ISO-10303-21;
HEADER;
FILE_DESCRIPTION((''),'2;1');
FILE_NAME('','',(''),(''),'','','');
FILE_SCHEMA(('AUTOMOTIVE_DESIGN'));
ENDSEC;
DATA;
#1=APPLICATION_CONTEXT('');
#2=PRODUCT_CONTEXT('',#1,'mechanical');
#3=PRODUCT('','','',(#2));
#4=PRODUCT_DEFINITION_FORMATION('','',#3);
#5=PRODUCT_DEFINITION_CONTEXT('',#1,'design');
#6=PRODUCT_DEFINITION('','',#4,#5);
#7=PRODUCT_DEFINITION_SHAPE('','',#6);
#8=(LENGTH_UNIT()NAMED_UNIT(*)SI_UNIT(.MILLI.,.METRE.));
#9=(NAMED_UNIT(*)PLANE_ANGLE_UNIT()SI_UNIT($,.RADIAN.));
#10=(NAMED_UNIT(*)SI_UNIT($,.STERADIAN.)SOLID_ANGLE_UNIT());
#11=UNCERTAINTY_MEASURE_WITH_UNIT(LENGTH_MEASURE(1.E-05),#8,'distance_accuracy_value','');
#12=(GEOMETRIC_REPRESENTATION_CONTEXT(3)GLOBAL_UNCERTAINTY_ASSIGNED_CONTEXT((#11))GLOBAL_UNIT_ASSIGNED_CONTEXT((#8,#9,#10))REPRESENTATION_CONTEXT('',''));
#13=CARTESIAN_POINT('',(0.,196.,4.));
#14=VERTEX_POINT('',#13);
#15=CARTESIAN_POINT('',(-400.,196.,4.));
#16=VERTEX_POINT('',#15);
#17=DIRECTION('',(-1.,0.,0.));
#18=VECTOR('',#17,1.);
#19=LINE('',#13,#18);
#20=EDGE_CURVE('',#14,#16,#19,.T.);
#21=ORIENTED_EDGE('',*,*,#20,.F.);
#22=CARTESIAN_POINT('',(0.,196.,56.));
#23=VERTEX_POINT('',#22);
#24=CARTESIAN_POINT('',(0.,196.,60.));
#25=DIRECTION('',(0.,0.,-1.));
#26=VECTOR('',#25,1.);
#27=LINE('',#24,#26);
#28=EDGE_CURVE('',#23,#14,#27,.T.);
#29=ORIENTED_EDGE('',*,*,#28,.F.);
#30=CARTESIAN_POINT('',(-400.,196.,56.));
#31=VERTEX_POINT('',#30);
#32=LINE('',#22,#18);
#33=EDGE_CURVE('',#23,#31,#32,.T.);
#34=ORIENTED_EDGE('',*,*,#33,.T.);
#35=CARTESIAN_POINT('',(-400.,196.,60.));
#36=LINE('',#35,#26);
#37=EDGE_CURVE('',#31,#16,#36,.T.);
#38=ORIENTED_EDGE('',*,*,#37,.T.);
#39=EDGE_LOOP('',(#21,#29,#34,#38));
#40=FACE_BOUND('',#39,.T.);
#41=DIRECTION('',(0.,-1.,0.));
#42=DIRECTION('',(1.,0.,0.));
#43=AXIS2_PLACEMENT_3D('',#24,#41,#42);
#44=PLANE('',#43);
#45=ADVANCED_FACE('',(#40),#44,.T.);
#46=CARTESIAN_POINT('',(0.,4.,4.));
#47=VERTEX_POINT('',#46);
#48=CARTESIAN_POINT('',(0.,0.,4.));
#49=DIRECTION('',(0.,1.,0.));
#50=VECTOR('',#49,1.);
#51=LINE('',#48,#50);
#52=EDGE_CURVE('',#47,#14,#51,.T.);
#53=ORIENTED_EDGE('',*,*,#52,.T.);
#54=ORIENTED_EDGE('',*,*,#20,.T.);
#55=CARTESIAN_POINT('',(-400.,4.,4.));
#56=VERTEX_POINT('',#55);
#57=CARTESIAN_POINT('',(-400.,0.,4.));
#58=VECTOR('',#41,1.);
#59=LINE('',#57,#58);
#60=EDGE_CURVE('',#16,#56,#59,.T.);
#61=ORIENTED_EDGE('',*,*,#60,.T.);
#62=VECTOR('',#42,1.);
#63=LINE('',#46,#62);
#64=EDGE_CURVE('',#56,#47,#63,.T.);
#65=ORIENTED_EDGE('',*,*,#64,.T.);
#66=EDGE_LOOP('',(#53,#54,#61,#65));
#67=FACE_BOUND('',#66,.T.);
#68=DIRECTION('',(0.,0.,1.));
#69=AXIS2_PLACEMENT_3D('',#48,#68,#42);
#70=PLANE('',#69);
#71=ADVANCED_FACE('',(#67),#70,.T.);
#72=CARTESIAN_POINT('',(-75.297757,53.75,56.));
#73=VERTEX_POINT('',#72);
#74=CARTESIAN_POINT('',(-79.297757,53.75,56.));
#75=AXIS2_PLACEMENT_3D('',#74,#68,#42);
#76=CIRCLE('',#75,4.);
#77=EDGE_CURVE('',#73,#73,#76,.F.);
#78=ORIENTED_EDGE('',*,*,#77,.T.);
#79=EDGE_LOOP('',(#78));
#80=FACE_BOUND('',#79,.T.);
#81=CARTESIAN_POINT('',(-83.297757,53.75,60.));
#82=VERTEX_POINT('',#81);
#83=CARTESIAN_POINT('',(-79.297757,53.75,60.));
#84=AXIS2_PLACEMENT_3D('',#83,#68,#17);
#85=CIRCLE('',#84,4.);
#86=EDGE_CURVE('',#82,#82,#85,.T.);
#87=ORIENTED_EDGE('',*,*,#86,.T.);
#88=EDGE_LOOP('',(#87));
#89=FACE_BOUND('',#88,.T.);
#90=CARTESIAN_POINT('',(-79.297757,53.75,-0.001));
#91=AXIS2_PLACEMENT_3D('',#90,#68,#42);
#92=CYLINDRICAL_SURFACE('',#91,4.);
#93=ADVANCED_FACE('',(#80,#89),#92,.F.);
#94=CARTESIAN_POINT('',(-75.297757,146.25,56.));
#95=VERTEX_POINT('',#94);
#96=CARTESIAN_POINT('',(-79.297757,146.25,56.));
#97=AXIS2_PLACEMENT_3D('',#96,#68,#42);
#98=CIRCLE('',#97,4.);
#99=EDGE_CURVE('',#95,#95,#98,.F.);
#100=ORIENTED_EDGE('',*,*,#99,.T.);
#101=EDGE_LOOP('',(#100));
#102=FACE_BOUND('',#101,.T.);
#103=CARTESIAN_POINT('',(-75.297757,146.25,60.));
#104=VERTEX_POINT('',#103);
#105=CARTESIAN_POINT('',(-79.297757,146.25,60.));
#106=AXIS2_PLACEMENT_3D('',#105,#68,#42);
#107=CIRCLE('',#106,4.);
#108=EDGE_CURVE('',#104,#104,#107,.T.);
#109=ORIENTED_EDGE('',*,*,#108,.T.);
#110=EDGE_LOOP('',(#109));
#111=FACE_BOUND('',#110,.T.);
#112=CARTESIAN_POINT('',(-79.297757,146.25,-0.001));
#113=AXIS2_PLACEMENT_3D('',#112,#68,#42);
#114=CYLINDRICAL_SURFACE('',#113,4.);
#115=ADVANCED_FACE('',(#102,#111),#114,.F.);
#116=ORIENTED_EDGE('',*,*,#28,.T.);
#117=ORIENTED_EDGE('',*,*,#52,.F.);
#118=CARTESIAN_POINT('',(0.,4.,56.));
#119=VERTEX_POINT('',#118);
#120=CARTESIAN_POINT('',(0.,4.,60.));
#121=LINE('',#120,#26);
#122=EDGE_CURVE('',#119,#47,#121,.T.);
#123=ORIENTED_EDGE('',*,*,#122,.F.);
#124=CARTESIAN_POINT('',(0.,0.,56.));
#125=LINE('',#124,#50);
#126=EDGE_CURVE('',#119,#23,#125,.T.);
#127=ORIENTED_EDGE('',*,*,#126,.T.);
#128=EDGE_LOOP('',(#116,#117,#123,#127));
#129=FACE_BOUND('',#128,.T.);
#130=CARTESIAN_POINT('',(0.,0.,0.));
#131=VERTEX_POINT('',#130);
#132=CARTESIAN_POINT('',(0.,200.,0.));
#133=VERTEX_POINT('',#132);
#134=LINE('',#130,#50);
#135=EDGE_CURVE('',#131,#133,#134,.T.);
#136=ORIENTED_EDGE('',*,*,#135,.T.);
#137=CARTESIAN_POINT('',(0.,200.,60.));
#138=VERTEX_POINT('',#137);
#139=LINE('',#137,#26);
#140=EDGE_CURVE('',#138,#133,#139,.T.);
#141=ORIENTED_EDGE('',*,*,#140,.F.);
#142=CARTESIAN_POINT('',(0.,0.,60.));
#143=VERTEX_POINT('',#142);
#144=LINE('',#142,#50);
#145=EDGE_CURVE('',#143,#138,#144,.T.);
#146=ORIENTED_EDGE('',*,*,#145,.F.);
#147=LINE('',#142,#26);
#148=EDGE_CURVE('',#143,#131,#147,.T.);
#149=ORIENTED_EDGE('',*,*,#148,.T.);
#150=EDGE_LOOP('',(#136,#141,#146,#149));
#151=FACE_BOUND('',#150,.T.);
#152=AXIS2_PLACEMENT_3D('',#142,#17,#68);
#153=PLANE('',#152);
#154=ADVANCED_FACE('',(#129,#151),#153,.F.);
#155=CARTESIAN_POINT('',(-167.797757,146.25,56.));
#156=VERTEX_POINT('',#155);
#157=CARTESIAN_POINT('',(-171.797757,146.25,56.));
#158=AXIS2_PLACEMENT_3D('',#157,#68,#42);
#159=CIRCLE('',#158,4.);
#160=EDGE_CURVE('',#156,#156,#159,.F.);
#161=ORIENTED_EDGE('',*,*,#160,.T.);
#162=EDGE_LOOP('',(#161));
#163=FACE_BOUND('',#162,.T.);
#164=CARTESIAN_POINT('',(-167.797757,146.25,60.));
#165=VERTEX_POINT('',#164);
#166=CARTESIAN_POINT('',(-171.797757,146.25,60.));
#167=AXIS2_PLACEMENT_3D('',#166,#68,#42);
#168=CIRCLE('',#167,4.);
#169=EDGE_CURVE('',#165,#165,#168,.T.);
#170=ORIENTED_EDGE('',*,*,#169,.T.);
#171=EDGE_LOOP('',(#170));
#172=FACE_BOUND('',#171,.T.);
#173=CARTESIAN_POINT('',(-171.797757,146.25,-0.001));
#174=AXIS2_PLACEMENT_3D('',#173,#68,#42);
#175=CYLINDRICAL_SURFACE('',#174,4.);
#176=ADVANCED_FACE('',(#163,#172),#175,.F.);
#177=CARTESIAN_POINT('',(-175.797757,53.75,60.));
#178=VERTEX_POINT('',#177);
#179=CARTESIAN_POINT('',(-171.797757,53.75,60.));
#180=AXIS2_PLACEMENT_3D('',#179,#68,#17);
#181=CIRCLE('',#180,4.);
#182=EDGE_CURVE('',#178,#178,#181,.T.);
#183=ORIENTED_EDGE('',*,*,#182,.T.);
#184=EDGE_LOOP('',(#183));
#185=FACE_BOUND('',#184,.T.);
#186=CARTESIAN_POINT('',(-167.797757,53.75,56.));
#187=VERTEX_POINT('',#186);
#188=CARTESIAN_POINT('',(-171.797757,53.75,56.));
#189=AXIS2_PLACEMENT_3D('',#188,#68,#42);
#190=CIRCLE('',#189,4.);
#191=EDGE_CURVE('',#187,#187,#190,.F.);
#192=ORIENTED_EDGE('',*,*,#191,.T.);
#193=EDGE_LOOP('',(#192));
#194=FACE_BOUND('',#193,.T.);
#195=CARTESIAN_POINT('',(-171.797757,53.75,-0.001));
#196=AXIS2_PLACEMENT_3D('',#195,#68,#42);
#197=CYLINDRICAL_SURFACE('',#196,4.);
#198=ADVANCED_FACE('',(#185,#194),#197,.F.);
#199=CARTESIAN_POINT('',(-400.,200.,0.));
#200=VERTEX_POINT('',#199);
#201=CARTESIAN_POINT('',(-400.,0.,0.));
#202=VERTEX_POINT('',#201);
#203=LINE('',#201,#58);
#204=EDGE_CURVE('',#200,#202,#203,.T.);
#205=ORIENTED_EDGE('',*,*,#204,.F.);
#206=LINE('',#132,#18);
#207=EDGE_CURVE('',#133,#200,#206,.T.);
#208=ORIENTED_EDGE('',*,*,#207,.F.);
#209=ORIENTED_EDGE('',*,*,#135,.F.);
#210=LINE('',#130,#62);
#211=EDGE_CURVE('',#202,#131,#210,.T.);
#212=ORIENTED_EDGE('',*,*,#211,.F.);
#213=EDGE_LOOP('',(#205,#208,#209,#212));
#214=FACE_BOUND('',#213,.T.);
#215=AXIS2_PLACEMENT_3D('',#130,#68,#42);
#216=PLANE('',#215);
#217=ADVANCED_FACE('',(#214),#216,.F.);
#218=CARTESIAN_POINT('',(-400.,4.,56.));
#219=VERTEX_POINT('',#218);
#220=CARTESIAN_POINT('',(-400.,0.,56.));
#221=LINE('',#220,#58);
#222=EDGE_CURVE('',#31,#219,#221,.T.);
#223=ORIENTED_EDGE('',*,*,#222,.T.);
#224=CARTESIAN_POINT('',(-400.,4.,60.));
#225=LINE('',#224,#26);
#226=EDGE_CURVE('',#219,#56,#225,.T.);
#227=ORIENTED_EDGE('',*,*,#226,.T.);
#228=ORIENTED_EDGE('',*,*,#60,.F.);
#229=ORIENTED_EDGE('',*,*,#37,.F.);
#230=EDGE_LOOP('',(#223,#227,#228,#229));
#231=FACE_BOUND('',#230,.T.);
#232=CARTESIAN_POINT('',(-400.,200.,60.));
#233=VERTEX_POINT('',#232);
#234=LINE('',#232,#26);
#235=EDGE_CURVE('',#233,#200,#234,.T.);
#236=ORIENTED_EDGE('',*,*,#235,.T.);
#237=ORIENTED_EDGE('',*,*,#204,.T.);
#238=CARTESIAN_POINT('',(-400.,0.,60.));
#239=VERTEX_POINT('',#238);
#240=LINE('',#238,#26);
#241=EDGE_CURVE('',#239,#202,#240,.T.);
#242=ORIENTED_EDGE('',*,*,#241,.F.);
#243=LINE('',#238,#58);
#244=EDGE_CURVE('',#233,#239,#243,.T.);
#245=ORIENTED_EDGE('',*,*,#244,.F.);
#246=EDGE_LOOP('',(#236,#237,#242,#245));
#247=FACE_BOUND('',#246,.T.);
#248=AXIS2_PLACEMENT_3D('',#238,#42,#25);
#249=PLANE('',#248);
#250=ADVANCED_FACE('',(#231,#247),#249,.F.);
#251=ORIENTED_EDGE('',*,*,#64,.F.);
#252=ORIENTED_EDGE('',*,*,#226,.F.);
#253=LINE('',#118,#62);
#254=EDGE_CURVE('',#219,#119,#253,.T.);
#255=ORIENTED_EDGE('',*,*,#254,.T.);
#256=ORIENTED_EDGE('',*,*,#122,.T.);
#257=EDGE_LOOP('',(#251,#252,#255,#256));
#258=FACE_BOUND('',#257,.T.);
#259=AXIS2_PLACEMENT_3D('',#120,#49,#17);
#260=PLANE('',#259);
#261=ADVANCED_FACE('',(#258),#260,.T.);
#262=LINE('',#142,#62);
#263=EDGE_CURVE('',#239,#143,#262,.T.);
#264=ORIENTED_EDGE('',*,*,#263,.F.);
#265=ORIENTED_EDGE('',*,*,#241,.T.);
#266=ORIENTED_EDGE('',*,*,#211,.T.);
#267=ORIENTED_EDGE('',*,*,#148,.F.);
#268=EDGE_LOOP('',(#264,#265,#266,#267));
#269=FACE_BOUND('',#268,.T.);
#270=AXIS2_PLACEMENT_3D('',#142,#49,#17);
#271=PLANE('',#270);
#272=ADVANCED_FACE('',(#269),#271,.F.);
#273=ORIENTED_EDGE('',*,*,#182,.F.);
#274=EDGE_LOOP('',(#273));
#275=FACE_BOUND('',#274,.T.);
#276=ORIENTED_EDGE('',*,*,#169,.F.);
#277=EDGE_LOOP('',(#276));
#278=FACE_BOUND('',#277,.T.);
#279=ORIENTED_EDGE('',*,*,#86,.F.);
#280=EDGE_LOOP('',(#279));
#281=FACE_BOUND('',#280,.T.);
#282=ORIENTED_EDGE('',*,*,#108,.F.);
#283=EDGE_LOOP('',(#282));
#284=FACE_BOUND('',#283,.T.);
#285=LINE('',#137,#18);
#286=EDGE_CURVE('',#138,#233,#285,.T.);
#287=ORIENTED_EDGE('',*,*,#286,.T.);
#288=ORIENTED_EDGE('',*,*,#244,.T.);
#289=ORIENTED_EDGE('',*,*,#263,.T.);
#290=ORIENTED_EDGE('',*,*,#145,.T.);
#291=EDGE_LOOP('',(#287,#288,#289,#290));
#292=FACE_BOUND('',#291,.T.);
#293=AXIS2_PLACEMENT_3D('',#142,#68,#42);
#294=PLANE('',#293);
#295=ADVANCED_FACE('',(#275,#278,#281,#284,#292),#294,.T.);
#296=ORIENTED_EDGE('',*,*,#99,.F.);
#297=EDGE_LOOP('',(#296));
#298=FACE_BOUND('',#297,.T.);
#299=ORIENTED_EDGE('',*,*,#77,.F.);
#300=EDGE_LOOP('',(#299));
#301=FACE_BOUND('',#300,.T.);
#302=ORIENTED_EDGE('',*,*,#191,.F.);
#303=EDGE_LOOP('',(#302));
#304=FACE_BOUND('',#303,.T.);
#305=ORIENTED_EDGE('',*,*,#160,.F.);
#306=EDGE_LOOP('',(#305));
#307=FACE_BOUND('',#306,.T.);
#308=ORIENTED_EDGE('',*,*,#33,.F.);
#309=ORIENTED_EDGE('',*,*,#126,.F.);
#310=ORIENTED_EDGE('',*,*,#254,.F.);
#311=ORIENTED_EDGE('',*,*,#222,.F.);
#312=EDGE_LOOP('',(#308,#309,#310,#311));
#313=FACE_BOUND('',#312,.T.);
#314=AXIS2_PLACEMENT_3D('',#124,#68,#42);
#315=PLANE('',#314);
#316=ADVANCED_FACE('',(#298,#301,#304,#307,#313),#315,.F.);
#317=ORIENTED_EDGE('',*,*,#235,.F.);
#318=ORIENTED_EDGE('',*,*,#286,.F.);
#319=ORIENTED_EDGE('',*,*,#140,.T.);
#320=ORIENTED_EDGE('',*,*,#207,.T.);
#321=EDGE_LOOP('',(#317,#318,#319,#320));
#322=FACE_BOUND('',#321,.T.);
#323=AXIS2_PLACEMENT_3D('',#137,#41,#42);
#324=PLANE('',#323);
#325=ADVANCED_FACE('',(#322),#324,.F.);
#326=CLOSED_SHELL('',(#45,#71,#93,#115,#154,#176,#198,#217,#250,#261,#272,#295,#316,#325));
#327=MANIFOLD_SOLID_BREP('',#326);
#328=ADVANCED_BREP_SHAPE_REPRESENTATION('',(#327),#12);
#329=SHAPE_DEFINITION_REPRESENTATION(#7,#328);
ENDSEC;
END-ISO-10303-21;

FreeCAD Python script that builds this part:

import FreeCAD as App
import Part
import Sketcher


def faces_at(feature, points):
    """Names of the faces that lie closest to the given points."""
    faces = feature.Shape.Faces
    near = lambda p: min(range(len(faces)), key=lambda i: faces[i].distToShape(Part.Vertex(*p))[0])
    return sorted({f"Face{near(p) + 1}" for p in points})

doc = App.newDocument("Part")
body = doc.addObject("PartDesign::Body", "Body")

# Sketch on XY plane
sketch1 = doc.addObject("Sketcher::SketchObject", "Sketch")
body.addObject(sketch1)
sketch1.AttachmentSupport = (doc.XY_Plane, [""])
sketch1.MapMode = "FlatFace"
sketch1.addGeometry(Part.LineSegment(App.Vector(-400, 200, 0), App.Vector(-400, 0, 0)), False)
sketch1.addGeometry(Part.LineSegment(App.Vector(-400, 0, 0), App.Vector(0, 0, 0)), False)
sketch1.addGeometry(Part.LineSegment(App.Vector(0, 0, 0), App.Vector(0, 200, 0)), False)
sketch1.addGeometry(Part.LineSegment(App.Vector(0, 200, 0), App.Vector(-400, 200, 0)), False)
sketch1.addConstraint(Sketcher.Constraint("Coincident", 0, 2, 1, 1))
sketch1.addConstraint(Sketcher.Constraint("Coincident", 1, 2, 2, 1))
sketch1.addConstraint(Sketcher.Constraint("Coincident", 2, 2, 3, 1))
sketch1.addConstraint(Sketcher.Constraint("Coincident", 3, 2, 0, 1))
sketch1.addConstraint(Sketcher.Constraint("Vertical", 0))
sketch1.addConstraint(Sketcher.Constraint("Horizontal", 1))
sketch1.addConstraint(Sketcher.Constraint("Vertical", 2))
sketch1.addConstraint(Sketcher.Constraint("Horizontal", 3))
sketch1.addConstraint(Sketcher.Constraint("Coincident", 1, 2, -1, 1))
sketch1.addConstraint(Sketcher.Constraint("DistanceX", 1, 1, 1, 2, 400.0))
sketch1.addConstraint(Sketcher.Constraint("DistanceY", 0, 2, 0, 1, 200.0))
pad1 = doc.addObject("PartDesign::Pad", "Pad")
body.addObject(pad1)
pad1.Profile = sketch1
pad1.Length = 60
doc.recompute()

thickness = doc.addObject("PartDesign::Thickness", "Thickness")
body.addObject(thickness)
thickness.Base = (pad1, faces_at(pad1, [(-400, 100, 30), (0, 100, 30)]))
thickness.Value = 4
thickness.Reversed = True
thickness.Join = "Intersection"

# Sketch on XY plane
sketch2 = doc.addObject("Sketcher::SketchObject", "Sketch001")
body.addObject(sketch2)
sketch2.AttachmentSupport = (doc.XY_Plane, [""])
sketch2.MapMode = "FlatFace"
sketch2.AttachmentOffset = App.Placement(App.Vector(0, 0, 60), App.Rotation())
sketch2.addGeometry(Part.Circle(App.Vector(-79.3, 146.2, 0), App.Vector(0, 0, 1), 4), False)
sketch2.addConstraint(Sketcher.Constraint("Diameter", 0, 8.0))
sketch2.addConstraint(Sketcher.Constraint("DistanceY", -1, 1, 0, 3, 146.25))
sketch2.addConstraint(Sketcher.Constraint("DistanceX", 0, 3, -1, 1, 79.297757))
pocket1 = doc.addObject("PartDesign::Pocket", "Pocket")
body.addObject(pocket1)
pocket1.Profile = sketch2
pocket1.Type = "UpToFirst"

# Sketch on XY plane
sketch3 = doc.addObject("Sketcher::SketchObject", "Sketch002")
body.addObject(sketch3)
sketch3.AttachmentSupport = (doc.XY_Plane, [""])
sketch3.MapMode = "FlatFace"
sketch3.AttachmentOffset = App.Placement(App.Vector(0, 0, 60), App.Rotation())
sketch3.addGeometry(Part.Circle(App.Vector(-171.8, 146.2, 0), App.Vector(0, 0, 1), 4), False)
sketch3.addConstraint(Sketcher.Constraint("Diameter", 0, 8.0))
sketch3.addConstraint(Sketcher.Constraint("DistanceY", -1, 1, 0, 3, 146.25))
sketch3.addConstraint(Sketcher.Constraint("DistanceX", 0, 3, -1, 1, 171.797757))
pocket2 = doc.addObject("PartDesign::Pocket", "Pocket001")
body.addObject(pocket2)
pocket2.Profile = sketch3
pocket2.Type = "UpToFirst"

# Sketch on XY plane
sketch4 = doc.addObject("Sketcher::SketchObject", "Sketch003")
body.addObject(sketch4)
sketch4.AttachmentSupport = (doc.XY_Plane, [""])
sketch4.MapMode = "FlatFace"
sketch4.AttachmentOffset = App.Placement(App.Vector(0, 0, 60), App.Rotation())
sketch4.addGeometry(Part.Circle(App.Vector(-79.3, 53.8, 0), App.Vector(0, 0, 1), 4), False)
sketch4.addConstraint(Sketcher.Constraint("Diameter", 0, 8.0))
sketch4.addConstraint(Sketcher.Constraint("DistanceY", -1, 1, 0, 3, 53.75))
sketch4.addConstraint(Sketcher.Constraint("DistanceX", 0, 3, -1, 1, 79.297757))
pocket3 = doc.addObject("PartDesign::Pocket", "Pocket002")
body.addObject(pocket3)
pocket3.Profile = sketch4
pocket3.Type = "UpToFirst"

# Sketch on XY plane
sketch5 = doc.addObject("Sketcher::SketchObject", "Sketch004")
body.addObject(sketch5)
sketch5.AttachmentSupport = (doc.XY_Plane, [""])
sketch5.MapMode = "FlatFace"
sketch5.AttachmentOffset = App.Placement(App.Vector(0, 0, 60), App.Rotation())
sketch5.addGeometry(Part.Circle(App.Vector(-171.8, 53.8, 0), App.Vector(0, 0, 1), 4), False)
sketch5.addConstraint(Sketcher.Constraint("Diameter", 0, 8.0))
sketch5.addConstraint(Sketcher.Constraint("DistanceY", -1, 1, 0, 3, 53.75))
sketch5.addConstraint(Sketcher.Constraint("DistanceX", 0, 3, -1, 1, 171.797757))
pocket4 = doc.addObject("PartDesign::Pocket", "Pocket003")
body.addObject(pocket4)
pocket4.Profile = sketch5
pocket4.Type = "UpToFirst"

doc.recompute()
